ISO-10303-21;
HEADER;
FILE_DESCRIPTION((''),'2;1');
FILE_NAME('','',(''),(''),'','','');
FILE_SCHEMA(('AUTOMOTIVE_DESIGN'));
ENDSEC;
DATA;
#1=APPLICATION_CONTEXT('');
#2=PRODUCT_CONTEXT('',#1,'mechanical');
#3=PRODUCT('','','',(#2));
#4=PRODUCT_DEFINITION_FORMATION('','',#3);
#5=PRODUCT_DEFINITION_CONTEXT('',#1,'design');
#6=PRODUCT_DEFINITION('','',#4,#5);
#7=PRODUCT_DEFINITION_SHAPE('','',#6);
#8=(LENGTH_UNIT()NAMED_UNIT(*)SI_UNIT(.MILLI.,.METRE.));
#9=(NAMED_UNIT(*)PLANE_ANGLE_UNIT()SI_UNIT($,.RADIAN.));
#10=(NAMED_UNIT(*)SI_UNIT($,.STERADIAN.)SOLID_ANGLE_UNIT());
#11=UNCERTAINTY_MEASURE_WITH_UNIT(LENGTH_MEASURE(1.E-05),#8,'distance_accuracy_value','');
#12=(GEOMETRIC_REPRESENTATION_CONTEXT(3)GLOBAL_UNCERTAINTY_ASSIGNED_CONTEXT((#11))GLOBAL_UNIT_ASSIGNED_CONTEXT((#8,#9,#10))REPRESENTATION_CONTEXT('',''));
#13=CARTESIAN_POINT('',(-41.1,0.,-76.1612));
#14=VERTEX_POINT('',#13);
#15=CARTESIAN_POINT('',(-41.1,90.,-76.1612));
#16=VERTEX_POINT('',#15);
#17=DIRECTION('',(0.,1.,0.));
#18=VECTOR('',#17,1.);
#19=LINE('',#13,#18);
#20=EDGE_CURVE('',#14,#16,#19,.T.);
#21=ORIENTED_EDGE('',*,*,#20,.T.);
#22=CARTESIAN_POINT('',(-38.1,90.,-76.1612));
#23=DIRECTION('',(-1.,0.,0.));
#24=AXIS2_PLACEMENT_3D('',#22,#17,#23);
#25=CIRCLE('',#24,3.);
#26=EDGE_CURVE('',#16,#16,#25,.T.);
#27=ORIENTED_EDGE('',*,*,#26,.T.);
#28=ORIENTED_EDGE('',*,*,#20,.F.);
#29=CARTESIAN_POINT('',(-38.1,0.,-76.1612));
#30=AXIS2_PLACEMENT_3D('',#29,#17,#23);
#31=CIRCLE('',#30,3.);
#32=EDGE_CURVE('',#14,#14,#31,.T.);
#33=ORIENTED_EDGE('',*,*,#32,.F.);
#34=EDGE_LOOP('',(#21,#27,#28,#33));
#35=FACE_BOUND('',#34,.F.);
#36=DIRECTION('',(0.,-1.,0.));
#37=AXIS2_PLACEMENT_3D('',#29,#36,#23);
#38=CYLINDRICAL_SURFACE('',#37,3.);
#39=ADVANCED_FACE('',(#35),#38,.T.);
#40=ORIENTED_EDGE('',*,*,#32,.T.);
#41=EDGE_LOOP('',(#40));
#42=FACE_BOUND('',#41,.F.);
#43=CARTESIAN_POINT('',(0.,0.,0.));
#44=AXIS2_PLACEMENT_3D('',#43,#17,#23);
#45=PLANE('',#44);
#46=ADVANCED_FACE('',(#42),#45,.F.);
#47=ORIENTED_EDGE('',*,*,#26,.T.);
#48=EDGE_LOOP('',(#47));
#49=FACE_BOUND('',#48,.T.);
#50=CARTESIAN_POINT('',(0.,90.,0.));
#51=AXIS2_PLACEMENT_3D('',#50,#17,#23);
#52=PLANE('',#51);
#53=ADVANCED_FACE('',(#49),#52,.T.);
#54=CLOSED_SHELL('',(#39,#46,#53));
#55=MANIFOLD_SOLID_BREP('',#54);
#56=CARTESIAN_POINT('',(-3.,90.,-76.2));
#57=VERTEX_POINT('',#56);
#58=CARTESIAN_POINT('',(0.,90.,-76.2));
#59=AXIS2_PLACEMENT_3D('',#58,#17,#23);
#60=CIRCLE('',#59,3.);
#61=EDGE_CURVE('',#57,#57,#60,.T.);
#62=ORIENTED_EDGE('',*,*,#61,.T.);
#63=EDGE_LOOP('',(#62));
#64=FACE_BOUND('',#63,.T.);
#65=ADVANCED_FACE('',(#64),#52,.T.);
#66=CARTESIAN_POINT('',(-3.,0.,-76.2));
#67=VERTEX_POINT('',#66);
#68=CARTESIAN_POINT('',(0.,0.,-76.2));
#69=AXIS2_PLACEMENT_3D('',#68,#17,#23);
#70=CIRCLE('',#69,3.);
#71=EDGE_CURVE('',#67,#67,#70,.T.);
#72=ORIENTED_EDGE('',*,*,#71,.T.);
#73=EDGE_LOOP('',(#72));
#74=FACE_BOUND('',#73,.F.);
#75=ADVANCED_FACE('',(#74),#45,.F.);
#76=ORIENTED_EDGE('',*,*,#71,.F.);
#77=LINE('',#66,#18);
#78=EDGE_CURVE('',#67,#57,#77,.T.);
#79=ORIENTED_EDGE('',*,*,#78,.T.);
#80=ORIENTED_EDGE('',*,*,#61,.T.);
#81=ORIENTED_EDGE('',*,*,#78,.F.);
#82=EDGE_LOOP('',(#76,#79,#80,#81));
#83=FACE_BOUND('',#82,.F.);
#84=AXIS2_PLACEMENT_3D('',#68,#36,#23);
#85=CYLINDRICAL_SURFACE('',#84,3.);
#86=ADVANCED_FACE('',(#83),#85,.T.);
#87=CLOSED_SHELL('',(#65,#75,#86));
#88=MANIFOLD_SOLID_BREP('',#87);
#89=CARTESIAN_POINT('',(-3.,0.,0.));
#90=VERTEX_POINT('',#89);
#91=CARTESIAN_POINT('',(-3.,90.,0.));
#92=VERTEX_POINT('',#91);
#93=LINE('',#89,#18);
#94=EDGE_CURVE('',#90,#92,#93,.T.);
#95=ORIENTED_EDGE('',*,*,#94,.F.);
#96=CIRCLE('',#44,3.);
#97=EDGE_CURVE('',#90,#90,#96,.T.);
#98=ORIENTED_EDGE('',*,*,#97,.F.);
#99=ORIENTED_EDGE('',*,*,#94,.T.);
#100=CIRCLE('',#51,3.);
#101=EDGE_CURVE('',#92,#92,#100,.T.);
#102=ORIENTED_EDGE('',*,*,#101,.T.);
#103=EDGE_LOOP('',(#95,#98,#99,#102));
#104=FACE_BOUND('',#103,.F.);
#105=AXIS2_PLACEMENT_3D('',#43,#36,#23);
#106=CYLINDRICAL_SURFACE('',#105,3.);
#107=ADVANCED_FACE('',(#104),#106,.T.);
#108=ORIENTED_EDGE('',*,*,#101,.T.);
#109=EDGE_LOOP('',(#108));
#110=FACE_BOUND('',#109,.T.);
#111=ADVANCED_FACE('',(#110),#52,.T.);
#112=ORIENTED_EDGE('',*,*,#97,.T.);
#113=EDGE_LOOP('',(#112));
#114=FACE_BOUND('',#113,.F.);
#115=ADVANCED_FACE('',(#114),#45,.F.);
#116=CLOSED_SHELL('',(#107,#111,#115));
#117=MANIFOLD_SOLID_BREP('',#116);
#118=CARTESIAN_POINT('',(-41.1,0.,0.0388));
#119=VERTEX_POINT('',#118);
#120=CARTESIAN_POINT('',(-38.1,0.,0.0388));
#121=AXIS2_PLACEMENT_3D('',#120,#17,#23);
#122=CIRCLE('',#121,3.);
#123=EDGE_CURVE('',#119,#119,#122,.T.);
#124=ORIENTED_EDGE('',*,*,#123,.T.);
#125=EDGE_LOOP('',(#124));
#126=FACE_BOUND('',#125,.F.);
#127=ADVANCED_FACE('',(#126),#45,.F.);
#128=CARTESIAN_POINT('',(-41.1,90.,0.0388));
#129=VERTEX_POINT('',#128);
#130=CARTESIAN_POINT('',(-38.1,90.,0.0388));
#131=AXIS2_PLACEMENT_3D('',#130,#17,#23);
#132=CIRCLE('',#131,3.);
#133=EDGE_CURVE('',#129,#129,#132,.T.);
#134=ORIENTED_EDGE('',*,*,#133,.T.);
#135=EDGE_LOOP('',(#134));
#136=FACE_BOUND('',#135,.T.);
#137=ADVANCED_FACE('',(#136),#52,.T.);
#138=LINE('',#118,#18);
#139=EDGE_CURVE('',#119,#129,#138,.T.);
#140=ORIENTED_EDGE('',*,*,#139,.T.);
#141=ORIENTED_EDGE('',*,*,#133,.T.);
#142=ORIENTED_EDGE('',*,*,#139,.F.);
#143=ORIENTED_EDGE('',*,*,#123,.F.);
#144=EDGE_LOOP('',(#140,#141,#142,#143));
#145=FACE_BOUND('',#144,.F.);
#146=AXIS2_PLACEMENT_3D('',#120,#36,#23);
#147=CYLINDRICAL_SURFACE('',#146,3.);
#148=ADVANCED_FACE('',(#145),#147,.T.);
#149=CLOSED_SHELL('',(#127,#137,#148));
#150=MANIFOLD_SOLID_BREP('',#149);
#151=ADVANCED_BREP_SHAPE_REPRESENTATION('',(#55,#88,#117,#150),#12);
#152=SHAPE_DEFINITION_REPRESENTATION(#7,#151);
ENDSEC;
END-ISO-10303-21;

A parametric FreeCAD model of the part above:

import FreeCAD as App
import Part
import Sketcher

V = App.Vector
Q = App.Units.Quantity

doc = App.newDocument("Part")
body = doc.addObject("PartDesign::Body", "Body")
body.AllowCompound = True

sketch1 = doc.addObject("Sketcher::SketchObject", "Sketch")
body.addObject(sketch1)
sketch1.AttachmentSupport = (doc.XZ_Plane, [""])
sketch1.MapMode = "FlatFace"
sketch1.addGeometry([
    Part.Circle(V(0, 0, 0), V(0, 0, 1), 3),
    Part.Circle(V(-38.1, 0.0388, 0), V(0, 0, 1), 3),
    Part.Circle(V(0, -76.2, 0), V(0, 0, 1), 3),
    Part.Circle(V(-38.1, -76.1612, 0), V(0, 0, 1), 3),
], False)
sketch1.addConstraint([
    Sketcher.Constraint("Coincident", 0, 3, -1, 1),
    Sketcher.Constraint("Equal", 0, 1),
    Sketcher.Constraint("Equal", 1, 2),
    Sketcher.Constraint("Equal", 2, 3),
    Sketcher.Constraint("PointOnObject", 2, 3, -2),
    Sketcher.Constraint("Vertical", 1, 3, 3, 3),
    Sketcher.Constraint("Diameter", 0, Q("6 mm")),
    Sketcher.Constraint("DistanceX", 1, 3, -1, 1, Q("38.1 mm")),
    Sketcher.Constraint("DistanceY", 2, 3, -1, 1, Q("76.2 mm")),
    Sketcher.Constraint("DistanceY", 3, 3, 1, 3, Q("76.2 mm")),
    Sketcher.Constraint("DistanceY", -1, 1, 1, 3, Q("0.0388 mm")),
])
pad1 = doc.addObject("PartDesign::Pad", "Pad")
body.addObject(pad1)
pad1.Profile = sketch1
pad1.Length = 90
pad1.Reversed = True

doc.recompute()
